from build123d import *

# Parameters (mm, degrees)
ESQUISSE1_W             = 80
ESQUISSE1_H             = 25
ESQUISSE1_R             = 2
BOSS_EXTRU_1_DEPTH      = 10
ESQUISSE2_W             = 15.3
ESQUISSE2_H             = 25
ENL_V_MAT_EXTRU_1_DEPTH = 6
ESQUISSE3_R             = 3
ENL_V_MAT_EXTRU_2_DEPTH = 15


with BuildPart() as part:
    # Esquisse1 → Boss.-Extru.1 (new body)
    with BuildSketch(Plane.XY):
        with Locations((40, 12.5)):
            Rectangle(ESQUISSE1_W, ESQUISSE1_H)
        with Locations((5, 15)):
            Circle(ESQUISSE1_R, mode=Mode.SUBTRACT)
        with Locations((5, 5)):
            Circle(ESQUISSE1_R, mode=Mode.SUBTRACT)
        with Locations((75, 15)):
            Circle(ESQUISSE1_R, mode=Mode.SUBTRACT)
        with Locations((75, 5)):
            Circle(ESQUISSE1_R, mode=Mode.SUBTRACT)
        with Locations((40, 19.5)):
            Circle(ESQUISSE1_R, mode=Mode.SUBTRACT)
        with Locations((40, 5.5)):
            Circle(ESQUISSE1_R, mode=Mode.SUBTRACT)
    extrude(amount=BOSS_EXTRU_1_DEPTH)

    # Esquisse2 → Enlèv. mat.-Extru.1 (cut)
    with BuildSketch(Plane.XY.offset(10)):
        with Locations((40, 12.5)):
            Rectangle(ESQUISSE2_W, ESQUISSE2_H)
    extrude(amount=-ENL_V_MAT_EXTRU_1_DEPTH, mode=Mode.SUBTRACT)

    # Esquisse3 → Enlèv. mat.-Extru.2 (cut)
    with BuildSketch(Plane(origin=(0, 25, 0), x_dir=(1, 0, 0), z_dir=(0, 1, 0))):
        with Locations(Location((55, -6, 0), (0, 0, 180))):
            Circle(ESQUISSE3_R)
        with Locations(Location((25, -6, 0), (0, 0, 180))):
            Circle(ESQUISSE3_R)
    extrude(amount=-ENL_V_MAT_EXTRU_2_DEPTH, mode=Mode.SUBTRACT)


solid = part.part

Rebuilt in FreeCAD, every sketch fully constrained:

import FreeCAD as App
import Part
import Sketcher
from FreeCAD import Vector
Q = App.Units.Quantity


def add_polygon(sketch, points):
    """Adds a closed chain of lines whose ends are joined by coincident constraints."""
    first, n = sketch.GeometryCount, len(points)
    for a, b in zip(points, points[1:] + points[:1]):
        sketch.addGeometry(Part.LineSegment(App.Vector(*a, 0), App.Vector(*b, 0)), False)
    for i in range(n):
        sketch.addConstraint(Sketcher.Constraint("Coincident", first + i, 2, first + (i + 1) % n, 1))

doc = App.newDocument("Part")
params = doc.addObject("Spreadsheet::Sheet", "Params")
for row, (alias, value) in enumerate([
    ("sketch1_diameter", "4 mm"),
    ("sketch1_width", "80 mm"),
    ("sketch1_height", "25 mm"),
    ("pad1_length", "10 mm"),
    ("sketch2_height", "25 mm"),
    ("sketch2_width", "15.3 mm"),
    ("pocket1_length", "6 mm"),
    ("sketch3_diameter", "6 mm"),
    ("pocket2_length", "15 mm"),
], start=1):
    params.set(f"A{row}", alias)
    params.set(f"B{row}", "=" + value)
    params.setAlias(f"B{row}", alias)

body = doc.addObject("PartDesign::Body", "Body")

# Sketch on XY plane
sketch1 = body.newObject("Sketcher::SketchObject", "Sketch")
sketch1.AttachmentSupport = (doc.getObject("XY_Plane"), [""])
sketch1.MapMode = "FlatFace"
add_polygon(sketch1, [(0, 25), (0, 0), (80, 0), (80, 25)])  # lines 0-3
sketch1.addGeometry(Part.Circle(Vector(5, 5, 0), Vector(0, 0, 1), 2), False)  # 4
sketch1.addGeometry(Part.Circle(Vector(40, 5.5, 0), Vector(0, 0, 1), 2), False)  # 5
sketch1.addGeometry(Part.Circle(Vector(75, 5, 0), Vector(0, 0, 1), 2), False)  # 6
sketch1.addGeometry(Part.Circle(Vector(5, 15, 0), Vector(0, 0, 1), 2), False)  # 7
sketch1.addGeometry(Part.Circle(Vector(75, 15, 0), Vector(0, 0, 1), 2), False)  # 8
sketch1.addGeometry(Part.Circle(Vector(40, 19.5, 0), Vector(0, 0, 1), 2), False)  # 9
sketch1.addConstraint([
    Sketcher.Constraint("Vertical", 0),
    Sketcher.Constraint("Horizontal", 1),
    Sketcher.Constraint("Vertical", 2),
    Sketcher.Constraint("Horizontal", 3),
    Sketcher.Constraint("Coincident", 0, 2, -1, 1),
    Sketcher.Constraint("Equal", 4, 5),
    Sketcher.Constraint("Equal", 5, 6),
    Sketcher.Constraint("Equal", 6, 7),
    Sketcher.Constraint("Equal", 7, 8),
    Sketcher.Constraint("Equal", 8, 9),
    Sketcher.Constraint("Horizontal", 4, 3, 6, 3),
    Sketcher.Constraint("Horizontal", 7, 3, 8, 3),
    Sketcher.Constraint("Vertical", 4, 3, 7, 3),
    Sketcher.Constraint("Vertical", 6, 3, 8, 3),
    Sketcher.Constraint("Vertical", 5, 3, 9, 3),
    Sketcher.Constraint("Diameter", 4, Q("4 mm")),
    Sketcher.Constraint("DistanceX", 1, 1, 1, 2, Q("80 mm")),
    Sketcher.Constraint("DistanceY", 0, 2, 0, 1, Q("25 mm")),
    Sketcher.Constraint("DistanceX", -1, 1, 4, 3, Q("5 mm")),
    Sketcher.Constraint("DistanceY", -1, 1, 4, 3, Q("5 mm")),
    Sketcher.Constraint("DistanceX", -1, 1, 5, 3, Q("40 mm")),
    Sketcher.Constraint("DistanceX", -1, 1, 6, 3, Q("75 mm")),
    Sketcher.Constraint("DistanceY", -1, 1, 7, 3, Q("15 mm")),
    Sketcher.Constraint("DistanceY", 5, 3, 9, 3, Q("14 mm")),
    Sketcher.Constraint("DistanceY", -1, 1, 5, 3, Q("5.5 mm")),
])
sketch1.setExpression("Constraints[19]", "Params.sketch1_diameter")
sketch1.setExpression("Constraints[20]", "Params.sketch1_width")
sketch1.setExpression("Constraints[21]", "Params.sketch1_height")
pad1 = body.newObject("PartDesign::Pad", "Pad")
pad1.Profile = sketch1
pad1.setExpression("Length", "Params.pad1_length")

# Sketch on XY plane
sketch2 = body.newObject("Sketcher::SketchObject", "Sketch001")
sketch2.AttachmentSupport = (doc.getObject("XY_Plane"), [""])
sketch2.MapMode = "FlatFace"
sketch2.AttachmentOffset = App.Placement(Vector(0, 0, 10), App.Rotation())
add_polygon(sketch2, [(32, 25), (32, 0), (48, 0), (48, 25)])  # lines 0-3
sketch2.addConstraint([
    Sketcher.Constraint("Vertical", 0),
    Sketcher.Constraint("Horizontal", 1),
    Sketcher.Constraint("Vertical", 2),
    Sketcher.Constraint("Horizontal", 3),
    Sketcher.Constraint("PointOnObject", 0, 2, -1),
    Sketcher.Constraint("DistanceY", 0, 2, 0, 1, Q("25 mm")),
    Sketcher.Constraint("DistanceX", 1, 1, 1, 2, Q("15.3 mm")),
    Sketcher.Constraint("DistanceX", -1, 1, 0, 2, Q("32.35 mm")),
])
sketch2.setExpression("Constraints[9]", "Params.sketch2_height")
sketch2.setExpression("Constraints[10]", "Params.sketch2_width")
pocket1 = body.newObject("PartDesign::Pocket", "Pocket")
pocket1.Profile = sketch2
pocket1.setExpression("Length", "Params.pocket1_length")

# Sketch on XZ plane
sketch3 = body.newObject("Sketcher::SketchObject", "Sketch002")
sketch3.AttachmentSupport = (doc.getObject("XZ_Plane"), [""])
sketch3.MapMode = "FlatFace"
sketch3.AttachmentOffset = App.Placement(Vector(0, 0, -25), App.Rotation())
sketch3.addGeometry([
    Part.Circle(Vector(55, 6, 0), Vector(0, 0, 1), 3),
    Part.Circle(Vector(25, 6, 0), Vector(0, 0, 1), 3),
], False)
sketch3.addConstraint([
    Sketcher.Constraint("Equal", 0, 1),
    Sketcher.Constraint("Horizontal", 0, 3, 1, 3),
    Sketcher.Constraint("Diameter", 0, Q("6 mm")),
    Sketcher.Constraint("DistanceX", -1, 1, 0, 3, Q("55 mm")),
    Sketcher.Constraint("DistanceY", -1, 1, 0, 3, Q("6 mm")),
    Sketcher.Constraint("DistanceX", -1, 1, 1, 3, Q("25 mm")),
])
sketch3.setExpression("Constraints[2]", "Params.sketch3_diameter")
pocket2 = body.newObject("PartDesign::Pocket", "Pocket001")
pocket2.Profile = sketch3
pocket2.setExpression("Length", "Params.pocket2_length")
pocket2.Reversed = True

doc.recompute()
